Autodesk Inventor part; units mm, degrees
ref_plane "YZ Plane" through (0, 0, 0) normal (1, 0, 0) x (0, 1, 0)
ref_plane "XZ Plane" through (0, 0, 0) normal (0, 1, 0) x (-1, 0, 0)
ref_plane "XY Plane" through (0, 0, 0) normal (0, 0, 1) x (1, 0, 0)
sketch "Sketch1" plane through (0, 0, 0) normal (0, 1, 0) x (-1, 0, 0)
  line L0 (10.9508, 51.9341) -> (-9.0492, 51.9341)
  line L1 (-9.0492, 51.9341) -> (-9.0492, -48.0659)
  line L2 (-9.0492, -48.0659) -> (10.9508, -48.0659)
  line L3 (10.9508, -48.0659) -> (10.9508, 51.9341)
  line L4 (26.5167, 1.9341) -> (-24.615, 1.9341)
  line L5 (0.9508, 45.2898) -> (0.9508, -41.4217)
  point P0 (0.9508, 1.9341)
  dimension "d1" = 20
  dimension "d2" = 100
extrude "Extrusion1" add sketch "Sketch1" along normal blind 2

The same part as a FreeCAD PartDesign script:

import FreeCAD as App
import Part
import Sketcher
Q = App.Units.Quantity


def add_polygon(sketch, points):
    """Adds a closed chain of lines whose ends are joined by coincident constraints."""
    first, n = sketch.GeometryCount, len(points)
    for a, b in zip(points, points[1:] + points[:1]):
        sketch.addGeometry(Part.LineSegment(App.Vector(*a, 0), App.Vector(*b, 0)), False)
    for i in range(n):
        sketch.addConstraint(Sketcher.Constraint("Coincident", first + i, 2, first + (i + 1) % n, 1))

doc = App.newDocument("Part")
body = doc.addObject("PartDesign::Body", "Body")

# Sketch on XZ plane
sketch1 = body.newObject("Sketcher::SketchObject", "Sketch")
sketch1.AttachmentSupport = (doc.getObject("XZ_Plane"), [""])
sketch1.MapMode = "FlatFace"
add_polygon(sketch1, [(-11, 52), (9, 52), (9, -48), (-11, -48)])  # lines 0-3
sketch1.addConstraint(Sketcher.Constraint("Horizontal", 0))
sketch1.addConstraint(Sketcher.Constraint("Vertical", 1))
sketch1.addConstraint(Sketcher.Constraint("Horizontal", 2))
sketch1.addConstraint(Sketcher.Constraint("Vertical", 3))
sketch1.addConstraint(Sketcher.Constraint("DistanceX", 0, 1, 0, 2, Q("20 mm")))
sketch1.addConstraint(Sketcher.Constraint("DistanceY", 1, 2, 1, 1, Q("100 mm")))
sketch1.addConstraint(Sketcher.Constraint("DistanceY", -1, 1, 0, 2, Q("51.934 mm")))
sketch1.addConstraint(Sketcher.Constraint("DistanceX", -1, 1, 0, 2, Q("9.0492 mm")))
pad1 = body.newObject("PartDesign::Pad", "Pad")
pad1.Profile = sketch1
pad1.Length = 2
pad1.Reversed = True

doc.recompute()
